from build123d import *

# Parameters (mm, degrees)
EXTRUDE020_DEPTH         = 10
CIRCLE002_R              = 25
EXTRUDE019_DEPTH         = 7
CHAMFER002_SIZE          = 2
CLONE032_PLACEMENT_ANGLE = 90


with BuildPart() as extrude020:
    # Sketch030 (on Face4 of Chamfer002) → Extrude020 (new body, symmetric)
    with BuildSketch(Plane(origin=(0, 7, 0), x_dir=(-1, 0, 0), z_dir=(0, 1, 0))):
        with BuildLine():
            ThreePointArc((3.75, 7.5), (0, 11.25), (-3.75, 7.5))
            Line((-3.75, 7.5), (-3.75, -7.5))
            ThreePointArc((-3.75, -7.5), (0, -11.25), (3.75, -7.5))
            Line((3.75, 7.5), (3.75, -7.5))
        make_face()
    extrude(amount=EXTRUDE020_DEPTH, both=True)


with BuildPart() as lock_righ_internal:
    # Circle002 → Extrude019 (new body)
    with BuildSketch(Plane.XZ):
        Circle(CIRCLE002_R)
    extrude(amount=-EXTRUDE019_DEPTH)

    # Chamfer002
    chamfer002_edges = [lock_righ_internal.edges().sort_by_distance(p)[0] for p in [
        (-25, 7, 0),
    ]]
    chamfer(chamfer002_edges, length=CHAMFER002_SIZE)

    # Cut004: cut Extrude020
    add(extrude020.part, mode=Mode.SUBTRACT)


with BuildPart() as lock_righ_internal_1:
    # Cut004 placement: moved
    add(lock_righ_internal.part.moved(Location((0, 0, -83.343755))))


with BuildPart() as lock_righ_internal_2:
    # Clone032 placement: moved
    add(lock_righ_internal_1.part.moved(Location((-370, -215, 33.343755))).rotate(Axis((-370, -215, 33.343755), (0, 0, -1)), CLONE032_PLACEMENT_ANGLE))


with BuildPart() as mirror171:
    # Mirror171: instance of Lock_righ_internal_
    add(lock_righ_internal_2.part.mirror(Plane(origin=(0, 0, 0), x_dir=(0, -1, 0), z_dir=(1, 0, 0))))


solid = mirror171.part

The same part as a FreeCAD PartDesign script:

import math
import FreeCAD as App
import Part
import Sketcher


def edges_at(feature, points):
    """Names of the edges that pass closest to the given points."""
    edges = feature.Shape.Edges
    near = lambda p: min(range(len(edges)), key=lambda i: edges[i].distToShape(Part.Vertex(*p))[0])
    return sorted({f"Edge{near(p) + 1}" for p in points})

doc = App.newDocument("Part")
body = doc.addObject("PartDesign::Body", "Body")

sketch1 = body.newObject("Sketcher::SketchObject", "Sketch")
sketch1.AttachmentSupport = (doc.getObject("XZ_Plane"), [""])
sketch1.MapMode = "FlatFace"
sketch1.AttachmentOffset = App.Placement(App.Vector(0, 0, -7), App.Rotation())
sketch1.addGeometry(Part.ArcOfCircle(Part.Circle(App.Vector(0, 7.5, 0), App.Vector(0, 0, 1), 3.75), math.radians(0), math.radians(180)), False)
sketch1.addGeometry(Part.LineSegment(App.Vector(3.75, 7.5, 0), App.Vector(3.75, -7.5, 0)), False)
sketch1.addGeometry(Part.ArcOfCircle(Part.Circle(App.Vector(0, -7.5, 0), App.Vector(0, 0, 1), 3.75), math.radians(180), math.radians(360)), False)
sketch1.addGeometry(Part.LineSegment(App.Vector(-3.75, -7.5, 0), App.Vector(-3.75, 7.5, 0)), False)
sketch1.addConstraint(Sketcher.Constraint("Tangent", 0, 1, 1, 1))
sketch1.addConstraint(Sketcher.Constraint("Tangent", 1, 2, 2, 2))
sketch1.addConstraint(Sketcher.Constraint("Tangent", 2, 1, 3, 1))
sketch1.addConstraint(Sketcher.Constraint("Tangent", 3, 2, 0, 2))
sketch1.addConstraint(Sketcher.Constraint("Vertical", 1))
sketch1.addConstraint(Sketcher.Constraint("Vertical", 3))
sketch1.addConstraint(Sketcher.Constraint("Symmetric", 0, 3, 2, 3, -1, 1))
sketch1.addConstraint(Sketcher.Constraint("DistanceY", 1, 2, 1, 1, 15.0))
sketch1.addConstraint(Sketcher.Constraint("Radius", 0, 3.75))
pad1 = body.newObject("PartDesign::Pad", "Pad")
pad1.Profile = sketch1
pad1.Length = 20
pad1.Midplane = True
body2 = doc.addObject("PartDesign::Body", "Body001")

sketch2 = body2.newObject("Sketcher::SketchObject", "Sketch001")
sketch2.AttachmentSupport = (doc.getObject("XZ_Plane001"), [""])
sketch2.MapMode = "FlatFace"
sketch2.addGeometry(Part.Circle(App.Vector(0, 0, 0), App.Vector(0, 0, 1), 25), False)
sketch2.addConstraint(Sketcher.Constraint("Coincident", 0, 3, -1, 1))
sketch2.addConstraint(Sketcher.Constraint("Diameter", 0, 50.0))
pad2 = body2.newObject("PartDesign::Pad", "Pad001")
pad2.Profile = sketch2
pad2.Length = 7
pad2.Reversed = True
doc.recompute()

chamfer = body2.newObject("PartDesign::Chamfer", "Chamfer")
chamfer.Base = (pad2, edges_at(pad2, [(-25, 7, 0)]))
chamfer.Size = 2
doc.recompute()

boolean = body2.newObject("PartDesign::Boolean", "Boolean")
boolean.Type = "Cut"
boolean.addObjects([body])
body3 = doc.addObject("PartDesign::Body", "Body002")
doc.recompute()

body2.Placement = App.Placement(App.Vector(0, 0, -83.343755), App.Rotation(App.Vector(0, 0, 1), 0))
boolean2 = body3.newObject("PartDesign::Boolean", "Boolean001")
boolean2.Type = "Fuse"
boolean2.addObjects([body2])
body4 = doc.addObject("PartDesign::Body", "Body003")
doc.recompute()

body3.Placement = App.Placement(App.Vector(-370, -215, 33.343755), App.Rotation(App.Vector(0, 0, -1), 90))
boolean3 = body4.newObject("PartDesign::Boolean", "Boolean002")
boolean3.Type = "Fuse"
boolean3.addObjects([body3])
body5 = doc.addObject("PartDesign::Body", "Body004")
doc.recompute()

mirroring = doc.addObject("Part::Mirroring", "Mirroring")
mirroring.Source = body4
mirroring.Base = App.Vector(0, 0, 0)
mirroring.Normal = App.Vector(1, 0, 0)
body5.BaseFeature = mirroring
doc.recompute()
body4.Visibility = False
mirroring.Visibility = False

doc.recompute()
